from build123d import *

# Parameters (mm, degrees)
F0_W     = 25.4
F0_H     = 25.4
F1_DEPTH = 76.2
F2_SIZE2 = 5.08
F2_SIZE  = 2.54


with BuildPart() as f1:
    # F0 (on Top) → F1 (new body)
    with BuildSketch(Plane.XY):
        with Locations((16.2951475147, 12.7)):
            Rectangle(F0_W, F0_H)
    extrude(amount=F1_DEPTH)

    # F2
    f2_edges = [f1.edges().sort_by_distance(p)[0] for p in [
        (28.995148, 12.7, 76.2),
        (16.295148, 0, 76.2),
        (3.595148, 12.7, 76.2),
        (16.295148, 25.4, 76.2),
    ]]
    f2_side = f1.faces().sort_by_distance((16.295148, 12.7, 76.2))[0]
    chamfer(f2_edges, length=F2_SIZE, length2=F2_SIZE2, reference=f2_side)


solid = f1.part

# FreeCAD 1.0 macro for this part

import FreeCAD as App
import Part
import Sketcher
from FreeCAD import Vector
Q = App.Units.Quantity


def edges_at(feature, points):
    """Names of the edges that pass closest to the given points."""
    edges = feature.Shape.Edges
    near = lambda p: min(range(len(edges)), key=lambda i: edges[i].distToShape(Part.Vertex(*p))[0])
    return sorted({f"Edge{near(p) + 1}" for p in points})

doc = App.newDocument("Part")
body = doc.addObject("PartDesign::Body", "Body")

# Sketch on XY plane
sketch1 = doc.addObject("Sketcher::SketchObject", "Sketch")
body.addObject(sketch1)
sketch1.AttachmentSupport = (doc.XY_Plane, [""])
sketch1.MapMode = "FlatFace"
sketch1.addGeometry([
    Part.LineSegment(Vector(4, 25, 0), Vector(4, 0, 0)),
    Part.LineSegment(Vector(4, 0, 0), Vector(29, 0, 0)),
    Part.LineSegment(Vector(29, 0, 0), Vector(29, 25, 0)),
    Part.LineSegment(Vector(29, 25, 0), Vector(4, 25, 0)),
], False)
sketch1.addConstraint([
    Sketcher.Constraint("Coincident", 0, 2, 1, 1),
    Sketcher.Constraint("Coincident", 1, 2, 2, 1),
    Sketcher.Constraint("Coincident", 2, 2, 3, 1),
    Sketcher.Constraint("Coincident", 3, 2, 0, 1),
    Sketcher.Constraint("Vertical", 0),
    Sketcher.Constraint("Horizontal", 1),
    Sketcher.Constraint("Vertical", 2),
    Sketcher.Constraint("Horizontal", 3),
    Sketcher.Constraint("PointOnObject", 0, 2, -1),
    Sketcher.Constraint("Equal", 3, 0),
    Sketcher.Constraint("DistanceX", 1, 1, 1, 2, Q("1 in")),
    Sketcher.Constraint("DistanceX", -1, 1, 0, 2, Q("3.595148 mm")),
])
pad1 = doc.addObject("PartDesign::Pad", "Pad")
body.addObject(pad1)
pad1.Profile = sketch1
pad1.Length = Q("3 in")
doc.recompute()

chamfer = doc.addObject("PartDesign::Chamfer", "Chamfer")
body.addObject(chamfer)
chamfer.Base = (pad1, edges_at(pad1, [
    (28.995, 12.7, 76.2),
    (16.295, 0, 76.2),
    (3.595, 12.7, 76.2),
    (16.295, 25.4, 76.2),
]))
chamfer.ChamferType = "Two distances"
chamfer.Size = Q("0.1 in")
chamfer.Size2 = Q("0.2 in")
chamfer.FlipDirection = True

doc.recompute()
